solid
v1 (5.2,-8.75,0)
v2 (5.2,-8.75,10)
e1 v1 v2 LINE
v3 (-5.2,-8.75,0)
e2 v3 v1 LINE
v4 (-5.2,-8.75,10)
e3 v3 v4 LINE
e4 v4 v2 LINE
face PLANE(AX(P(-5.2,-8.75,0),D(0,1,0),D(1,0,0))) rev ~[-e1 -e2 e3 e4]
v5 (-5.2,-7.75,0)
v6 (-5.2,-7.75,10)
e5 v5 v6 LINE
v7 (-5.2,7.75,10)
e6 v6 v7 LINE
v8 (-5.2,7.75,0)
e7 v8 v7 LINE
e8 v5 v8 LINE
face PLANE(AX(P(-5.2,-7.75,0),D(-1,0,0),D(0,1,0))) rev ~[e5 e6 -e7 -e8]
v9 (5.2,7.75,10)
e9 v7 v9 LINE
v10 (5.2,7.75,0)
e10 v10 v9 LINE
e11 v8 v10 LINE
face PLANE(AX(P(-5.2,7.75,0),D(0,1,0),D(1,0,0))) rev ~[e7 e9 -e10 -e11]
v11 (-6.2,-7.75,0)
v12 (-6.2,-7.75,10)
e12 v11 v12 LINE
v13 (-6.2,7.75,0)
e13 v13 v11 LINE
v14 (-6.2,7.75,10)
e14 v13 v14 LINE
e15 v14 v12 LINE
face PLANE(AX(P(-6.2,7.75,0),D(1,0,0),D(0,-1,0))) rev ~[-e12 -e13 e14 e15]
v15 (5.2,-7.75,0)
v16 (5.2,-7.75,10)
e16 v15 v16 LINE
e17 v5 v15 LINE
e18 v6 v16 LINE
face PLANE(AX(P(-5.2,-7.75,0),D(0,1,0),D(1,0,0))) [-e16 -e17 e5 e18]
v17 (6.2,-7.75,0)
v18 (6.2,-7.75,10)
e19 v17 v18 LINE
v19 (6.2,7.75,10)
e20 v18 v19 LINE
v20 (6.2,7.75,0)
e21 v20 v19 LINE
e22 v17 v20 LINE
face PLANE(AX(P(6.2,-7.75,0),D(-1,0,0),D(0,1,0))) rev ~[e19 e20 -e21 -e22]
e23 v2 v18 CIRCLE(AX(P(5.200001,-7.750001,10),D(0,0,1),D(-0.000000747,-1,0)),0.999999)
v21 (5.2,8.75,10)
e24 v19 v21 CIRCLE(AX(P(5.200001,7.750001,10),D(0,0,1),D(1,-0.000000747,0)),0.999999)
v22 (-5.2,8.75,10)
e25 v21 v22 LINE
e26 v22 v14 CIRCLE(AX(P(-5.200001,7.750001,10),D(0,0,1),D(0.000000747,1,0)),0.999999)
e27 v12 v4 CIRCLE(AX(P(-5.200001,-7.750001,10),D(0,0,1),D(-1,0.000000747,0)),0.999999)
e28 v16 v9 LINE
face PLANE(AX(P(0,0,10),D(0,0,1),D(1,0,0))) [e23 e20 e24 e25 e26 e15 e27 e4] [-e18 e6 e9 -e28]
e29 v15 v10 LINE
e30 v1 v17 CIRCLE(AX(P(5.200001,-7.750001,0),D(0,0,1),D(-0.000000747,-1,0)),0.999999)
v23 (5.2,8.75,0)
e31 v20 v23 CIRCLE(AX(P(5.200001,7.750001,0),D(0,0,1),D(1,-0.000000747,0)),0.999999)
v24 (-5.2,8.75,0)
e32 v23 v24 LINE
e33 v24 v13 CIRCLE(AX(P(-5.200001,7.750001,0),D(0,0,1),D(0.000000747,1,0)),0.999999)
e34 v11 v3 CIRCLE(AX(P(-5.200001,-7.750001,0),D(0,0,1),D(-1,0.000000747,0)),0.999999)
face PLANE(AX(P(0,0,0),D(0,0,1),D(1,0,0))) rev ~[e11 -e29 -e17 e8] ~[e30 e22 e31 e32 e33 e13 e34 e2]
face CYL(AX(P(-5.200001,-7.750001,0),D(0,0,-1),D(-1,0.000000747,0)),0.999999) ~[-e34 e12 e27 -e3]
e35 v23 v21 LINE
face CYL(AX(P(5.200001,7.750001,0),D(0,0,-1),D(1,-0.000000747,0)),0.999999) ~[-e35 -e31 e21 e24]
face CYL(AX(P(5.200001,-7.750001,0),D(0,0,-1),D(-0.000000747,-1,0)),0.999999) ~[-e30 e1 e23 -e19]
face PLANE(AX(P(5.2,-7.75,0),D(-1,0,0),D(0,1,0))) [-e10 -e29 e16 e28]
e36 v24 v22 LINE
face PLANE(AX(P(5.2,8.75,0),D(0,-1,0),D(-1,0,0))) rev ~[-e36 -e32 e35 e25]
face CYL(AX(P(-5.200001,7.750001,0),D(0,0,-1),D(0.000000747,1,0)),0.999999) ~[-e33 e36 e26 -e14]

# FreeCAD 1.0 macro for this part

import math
import FreeCAD as App
import Part
import Sketcher
from FreeCAD import Vector
Q = App.Units.Quantity

doc = App.newDocument("Part")
body = doc.addObject("PartDesign::Body", "Body")

sketch1 = body.newObject("Sketcher::SketchObject", "Sketch")
sketch1.AttachmentSupport = (doc.getObject("XY_Plane"), [""])
sketch1.MapMode = "FlatFace"
sketch1.addGeometry([
    Part.LineSegment(Vector(-6.2, 7.75, 0), Vector(-6.2, -7.75, 0)),
    Part.ArcOfCircle(Part.Circle(Vector(-5.200001, -7.750001, 0), Vector(0, 0, 1), 0.999999), math.radians(179.999957), math.radians(270.000043)),
    Part.LineSegment(Vector(-5.2, -8.75, 0), Vector(5.2, -8.75, 0)),
    Part.ArcOfCircle(Part.Circle(Vector(5.200001, -7.750001, 0), Vector(0, 0, 1), 0.999999), math.radians(-90.000043), math.radians(0.000043)),
    Part.LineSegment(Vector(6.2, -7.75, 0), Vector(6.2, 7.75, 0)),
    Part.ArcOfCircle(Part.Circle(Vector(5.200001, 7.750001, 0), Vector(0, 0, 1), 0.999999), math.radians(-0.000043), math.radians(90.000043)),
    Part.LineSegment(Vector(5.2, 8.75, 0), Vector(-5.2, 8.75, 0)),
    Part.ArcOfCircle(Part.Circle(Vector(-5.200001, 7.750001, 0), Vector(0, 0, 1), 0.999999), math.radians(89.999957), math.radians(180.000043)),
    Part.LineSegment(Vector(5.2, -7.75, 0), Vector(-5.2, -7.75, 0)),
    Part.LineSegment(Vector(-5.2, -7.75, 0), Vector(-5.2, 7.75, 0)),
    Part.LineSegment(Vector(-5.2, 7.75, 0), Vector(5.2, 7.75, 0)),
    Part.LineSegment(Vector(5.2, 7.75, 0), Vector(5.2, -7.75, 0)),
], False)
sketch1.addConstraint([
    Sketcher.Constraint("Tangent", 0, 2, 1, 1),
    Sketcher.Constraint("Tangent", 1, 2, 2, 1),
    Sketcher.Constraint("Tangent", 2, 2, 3, 1),
    Sketcher.Constraint("Tangent", 3, 2, 4, 1),
    Sketcher.Constraint("Tangent", 4, 2, 5, 1),
    Sketcher.Constraint("Tangent", 5, 2, 6, 1),
    Sketcher.Constraint("Tangent", 6, 2, 7, 1),
    Sketcher.Constraint("Tangent", 7, 2, 0, 1),
    Sketcher.Constraint("Coincident", 8, 2, 9, 1),
    Sketcher.Constraint("Coincident", 9, 2, 10, 1),
    Sketcher.Constraint("Coincident", 10, 2, 11, 1),
    Sketcher.Constraint("Coincident", 11, 2, 8, 1),
    Sketcher.Constraint("Vertical", 0),
    Sketcher.Constraint("Horizontal", 2),
    Sketcher.Constraint("Vertical", 4),
    Sketcher.Constraint("Horizontal", 6),
    Sketcher.Constraint("Horizontal", 8),
    Sketcher.Constraint("Vertical", 9),
    Sketcher.Constraint("Horizontal", 10),
    Sketcher.Constraint("Vertical", 11),
    Sketcher.Constraint("Coincident", 8, 2, 1, 3),
    Sketcher.Constraint("Coincident", 9, 2, 7, 3),
    Sketcher.Constraint("Coincident", 10, 2, 5, 3),
    Sketcher.Constraint("Equal", 1, 3),
    Sketcher.Constraint("Symmetric", 1, 3, 5, 3, -1, 1),
    Sketcher.Constraint("Radius", 1, Q("0.999999 mm")),
    Sketcher.Constraint("DistanceX", 2, 1, 2, 2, Q("10.4 mm")),
    Sketcher.Constraint("DistanceY", 0, 2, 0, 1, Q("15.5 mm")),
])
pad1 = body.newObject("PartDesign::Pad", "Pad")
pad1.Profile = sketch1
pad1.Length = 10

doc.recompute()
